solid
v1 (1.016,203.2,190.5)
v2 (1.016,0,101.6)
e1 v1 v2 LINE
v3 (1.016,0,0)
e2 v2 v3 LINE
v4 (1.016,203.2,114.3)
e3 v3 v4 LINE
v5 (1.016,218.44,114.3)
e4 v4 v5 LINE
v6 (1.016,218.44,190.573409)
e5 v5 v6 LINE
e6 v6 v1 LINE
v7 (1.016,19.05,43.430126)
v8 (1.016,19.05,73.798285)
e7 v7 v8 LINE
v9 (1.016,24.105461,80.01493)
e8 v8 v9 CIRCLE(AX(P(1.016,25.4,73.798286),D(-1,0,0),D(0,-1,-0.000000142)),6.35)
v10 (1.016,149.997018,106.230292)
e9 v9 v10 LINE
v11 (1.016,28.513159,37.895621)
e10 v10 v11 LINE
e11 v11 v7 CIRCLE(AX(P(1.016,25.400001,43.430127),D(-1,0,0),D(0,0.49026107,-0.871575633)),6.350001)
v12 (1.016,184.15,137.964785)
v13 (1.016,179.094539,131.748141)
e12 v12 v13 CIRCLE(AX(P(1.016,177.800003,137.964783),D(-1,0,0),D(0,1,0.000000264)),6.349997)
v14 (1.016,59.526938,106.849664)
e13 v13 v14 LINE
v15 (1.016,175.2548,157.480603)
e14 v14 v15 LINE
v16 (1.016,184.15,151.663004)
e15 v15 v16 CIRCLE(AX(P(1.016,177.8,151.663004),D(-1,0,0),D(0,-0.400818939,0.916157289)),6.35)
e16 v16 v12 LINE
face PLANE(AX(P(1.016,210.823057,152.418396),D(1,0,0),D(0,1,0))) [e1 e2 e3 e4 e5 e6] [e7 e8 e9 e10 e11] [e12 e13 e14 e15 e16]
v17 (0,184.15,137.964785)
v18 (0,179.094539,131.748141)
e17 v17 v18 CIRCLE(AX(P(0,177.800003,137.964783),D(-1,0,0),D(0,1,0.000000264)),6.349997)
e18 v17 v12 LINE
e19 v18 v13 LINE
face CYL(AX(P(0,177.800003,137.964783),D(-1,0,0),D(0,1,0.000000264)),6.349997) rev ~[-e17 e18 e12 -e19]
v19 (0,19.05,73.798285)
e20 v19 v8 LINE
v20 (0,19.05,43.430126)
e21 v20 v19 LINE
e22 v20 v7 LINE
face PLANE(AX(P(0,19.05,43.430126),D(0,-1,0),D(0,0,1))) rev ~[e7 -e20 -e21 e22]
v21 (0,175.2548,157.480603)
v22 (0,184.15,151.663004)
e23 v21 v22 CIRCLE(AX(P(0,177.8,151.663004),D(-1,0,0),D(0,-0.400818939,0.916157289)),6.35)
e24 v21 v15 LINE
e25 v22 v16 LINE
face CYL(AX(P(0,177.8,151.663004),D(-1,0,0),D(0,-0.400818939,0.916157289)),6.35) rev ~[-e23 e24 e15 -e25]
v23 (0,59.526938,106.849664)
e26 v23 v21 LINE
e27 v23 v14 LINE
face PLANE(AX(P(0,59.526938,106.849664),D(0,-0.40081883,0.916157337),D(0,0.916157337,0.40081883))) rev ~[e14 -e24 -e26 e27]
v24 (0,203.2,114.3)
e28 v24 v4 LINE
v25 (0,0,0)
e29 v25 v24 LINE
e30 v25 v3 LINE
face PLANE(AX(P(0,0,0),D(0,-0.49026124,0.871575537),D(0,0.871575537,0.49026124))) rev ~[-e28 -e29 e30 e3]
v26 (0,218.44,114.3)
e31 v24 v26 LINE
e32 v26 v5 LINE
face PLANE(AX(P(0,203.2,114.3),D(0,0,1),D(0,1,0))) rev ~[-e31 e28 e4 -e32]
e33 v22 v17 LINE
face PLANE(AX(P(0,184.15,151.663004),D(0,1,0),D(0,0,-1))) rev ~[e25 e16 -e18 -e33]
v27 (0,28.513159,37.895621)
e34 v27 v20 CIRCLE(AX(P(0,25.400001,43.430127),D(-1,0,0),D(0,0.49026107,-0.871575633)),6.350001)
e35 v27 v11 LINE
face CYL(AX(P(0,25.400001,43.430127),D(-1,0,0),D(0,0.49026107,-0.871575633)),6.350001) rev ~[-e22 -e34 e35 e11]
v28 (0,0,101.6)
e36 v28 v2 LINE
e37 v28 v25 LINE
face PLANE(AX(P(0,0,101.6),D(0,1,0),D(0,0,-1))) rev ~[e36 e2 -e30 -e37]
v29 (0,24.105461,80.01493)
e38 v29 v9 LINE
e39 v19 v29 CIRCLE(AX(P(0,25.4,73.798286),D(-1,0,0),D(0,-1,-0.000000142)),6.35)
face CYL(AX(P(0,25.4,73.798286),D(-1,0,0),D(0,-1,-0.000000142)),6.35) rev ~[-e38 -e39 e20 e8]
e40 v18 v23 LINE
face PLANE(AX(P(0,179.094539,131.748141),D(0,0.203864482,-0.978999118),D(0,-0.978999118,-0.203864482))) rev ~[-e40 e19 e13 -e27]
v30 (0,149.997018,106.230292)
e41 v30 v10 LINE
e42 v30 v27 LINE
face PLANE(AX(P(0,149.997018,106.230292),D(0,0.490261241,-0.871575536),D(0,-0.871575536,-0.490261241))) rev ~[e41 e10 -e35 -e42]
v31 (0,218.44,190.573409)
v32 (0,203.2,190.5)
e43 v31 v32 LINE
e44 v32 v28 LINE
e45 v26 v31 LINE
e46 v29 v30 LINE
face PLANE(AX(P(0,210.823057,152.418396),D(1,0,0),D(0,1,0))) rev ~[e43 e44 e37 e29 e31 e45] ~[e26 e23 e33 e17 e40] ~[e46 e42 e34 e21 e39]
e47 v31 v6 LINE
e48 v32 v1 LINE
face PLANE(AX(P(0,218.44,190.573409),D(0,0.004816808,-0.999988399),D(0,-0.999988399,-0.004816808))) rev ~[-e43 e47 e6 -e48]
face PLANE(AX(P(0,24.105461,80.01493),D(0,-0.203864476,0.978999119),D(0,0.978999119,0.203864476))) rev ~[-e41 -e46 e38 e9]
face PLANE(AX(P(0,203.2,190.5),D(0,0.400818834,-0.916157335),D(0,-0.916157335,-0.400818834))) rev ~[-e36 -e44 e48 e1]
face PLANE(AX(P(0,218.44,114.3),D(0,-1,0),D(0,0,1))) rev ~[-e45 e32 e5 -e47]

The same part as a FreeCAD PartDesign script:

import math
import FreeCAD as App
import Part
import Sketcher
from FreeCAD import Vector
Q = App.Units.Quantity


def add_polygon(sketch, points):
    """Adds a closed chain of lines whose ends are joined by coincident constraints."""
    first, n = sketch.GeometryCount, len(points)
    for a, b in zip(points, points[1:] + points[:1]):
        sketch.addGeometry(Part.LineSegment(App.Vector(*a, 0), App.Vector(*b, 0)), False)
    for i in range(n):
        sketch.addConstraint(Sketcher.Constraint("Coincident", first + i, 2, first + (i + 1) % n, 1))

doc = App.newDocument("Part")
params = doc.addObject("Spreadsheet::Sheet", "Params")
for row, (alias, value) in enumerate([
    ("sketch1_height", "4 in"),
    ("sketch1_radius", "0.25 in"),
    ("sketch1_radius2", "0.2499999 in"),
    ("sketch1_width", "0.6 in"),
    ("pad1_length", "0.04 in"),
], start=1):
    params.set(f"A{row}", alias)
    params.set(f"B{row}", "=" + value)
    params.setAlias(f"B{row}", alias)

body = doc.addObject("PartDesign::Body", "Body")

# Sketch on YZ plane
sketch1 = doc.addObject("Sketcher::SketchObject", "Sketch")
body.addObject(sketch1)
sketch1.AttachmentSupport = (doc.YZ_Plane, [""])
sketch1.MapMode = "FlatFace"
add_polygon(sketch1, [(203, 114), (218, 114), (218, 191), (203, 190), (0, 102), (0, 0)])  # lines 0-5
sketch1.addGeometry(Part.LineSegment(Vector(24, 80, 0), Vector(150, 106, 0)), False)  # 6
sketch1.addGeometry(Part.LineSegment(Vector(150, 106, 0), Vector(29, 38, 0)), False)  # 7
sketch1.addGeometry(Part.ArcOfCircle(Part.Circle(Vector(25, 43, 0), Vector(0, 0, 1), 6), math.radians(-180), math.radians(-61)), False)  # 8
sketch1.addGeometry(Part.LineSegment(Vector(19, 43, 0), Vector(19, 74, 0)), False)  # 9
sketch1.addGeometry(Part.ArcOfCircle(Part.Circle(Vector(25, 74, 0), Vector(0, 0, 1), 6), math.radians(102), math.radians(180)), False)  # 10
sketch1.addGeometry(Part.ArcOfCircle(Part.Circle(Vector(178, 152, 0), Vector(0, 0, 1), 6), math.radians(0), math.radians(114)), False)  # 11
sketch1.addGeometry(Part.LineSegment(Vector(184, 152, 0), Vector(184, 138, 0)), False)  # 12
sketch1.addGeometry(Part.ArcOfCircle(Part.Circle(Vector(178, 138, 0), Vector(0, 0, 1), 6), math.radians(-78), math.radians(0)), False)  # 13
sketch1.addGeometry(Part.LineSegment(Vector(179, 132, 0), Vector(60, 107, 0)), False)  # 14
sketch1.addGeometry(Part.LineSegment(Vector(60, 107, 0), Vector(175, 157, 0)), False)  # 15
sketch1.addConstraint([
    Sketcher.Constraint("Coincident", 6, 2, 7, 1),
    Sketcher.Constraint("Tangent", 7, 2, 8, 2),
    Sketcher.Constraint("Tangent", 8, 1, 9, 1),
    Sketcher.Constraint("Tangent", 9, 2, 10, 2),
    Sketcher.Constraint("Tangent", 10, 1, 6, 1),
    Sketcher.Constraint("Tangent", 11, 1, 12, 1),
    Sketcher.Constraint("Tangent", 12, 2, 13, 2),
    Sketcher.Constraint("Tangent", 13, 1, 14, 1),
    Sketcher.Constraint("Coincident", 14, 2, 15, 1),
    Sketcher.Constraint("Tangent", 15, 2, 11, 2),
    Sketcher.Constraint("Horizontal", 0),
    Sketcher.Constraint("Vertical", 1),
    Sketcher.Constraint("Vertical", 4),
    Sketcher.Constraint("Vertical", 9),
    Sketcher.Constraint("Vertical", 12),
    Sketcher.Constraint("Coincident", 4, 2, -1, 1),
    Sketcher.Constraint("Equal", 8, 10),
    Sketcher.Constraint("Equal", 10, 11),
    Sketcher.Constraint("Parallel", 5, 7),
    Sketcher.Constraint("Parallel", 6, 14),
    Sketcher.Constraint("Parallel", 3, 15),
    Sketcher.Constraint("Vertical", 2, 2, 5, 2),
    Sketcher.Constraint("DistanceY", 4, 2, 4, 1, Q("4 in")),
    Sketcher.Constraint("Radius", 8, Q("0.25 in")),
    Sketcher.Constraint("Radius", 13, Q("0.2499999 in")),
    Sketcher.Constraint("DistanceX", 0, 1, 0, 2, Q("0.6 in")),
    Sketcher.Constraint("DistanceX", -1, 1, 8, 3, Q("1 in")),
    Sketcher.Constraint("DistanceX", -1, 1, 11, 3, Q("7 in")),
    Sketcher.Constraint("DistanceX", -1, 1, 2, 2, Q("8 in")),
    Sketcher.Constraint("DistanceY", 0, 2, 2, 2, Q("3 in")),
    Sketcher.Constraint("DistanceY", -1, 1, 0, 2, Q("4.5 in")),
    Sketcher.Constraint("DistanceY", 12, 2, 12, 1, Q("0.5393 in")),
    Sketcher.Constraint("Distance", 7, Q("139.3842 mm")),
    Sketcher.Constraint("DistanceY", 1, 1, 1, 2, Q("76.273409 mm")),
    Sketcher.Constraint("DistanceY", 9, 1, 9, 2, Q("30.368159 mm")),
    Sketcher.Constraint("DistanceY", -1, 1, 7, 2, Q("37.895621 mm")),
    Sketcher.Constraint("DistanceY", -1, 1, 13, 1, Q("131.748141 mm")),
])
sketch1.setExpression("Constraints[28]", "Params.sketch1_height")
sketch1.setExpression("Constraints[29]", "Params.sketch1_radius")
sketch1.setExpression("Constraints[30]", "Params.sketch1_radius2")
sketch1.setExpression("Constraints[31]", "Params.sketch1_width")
pad1 = doc.addObject("PartDesign::Pad", "Pad")
body.addObject(pad1)
pad1.Profile = sketch1
pad1.setExpression("Length", "Params.pad1_length")

doc.recompute()
